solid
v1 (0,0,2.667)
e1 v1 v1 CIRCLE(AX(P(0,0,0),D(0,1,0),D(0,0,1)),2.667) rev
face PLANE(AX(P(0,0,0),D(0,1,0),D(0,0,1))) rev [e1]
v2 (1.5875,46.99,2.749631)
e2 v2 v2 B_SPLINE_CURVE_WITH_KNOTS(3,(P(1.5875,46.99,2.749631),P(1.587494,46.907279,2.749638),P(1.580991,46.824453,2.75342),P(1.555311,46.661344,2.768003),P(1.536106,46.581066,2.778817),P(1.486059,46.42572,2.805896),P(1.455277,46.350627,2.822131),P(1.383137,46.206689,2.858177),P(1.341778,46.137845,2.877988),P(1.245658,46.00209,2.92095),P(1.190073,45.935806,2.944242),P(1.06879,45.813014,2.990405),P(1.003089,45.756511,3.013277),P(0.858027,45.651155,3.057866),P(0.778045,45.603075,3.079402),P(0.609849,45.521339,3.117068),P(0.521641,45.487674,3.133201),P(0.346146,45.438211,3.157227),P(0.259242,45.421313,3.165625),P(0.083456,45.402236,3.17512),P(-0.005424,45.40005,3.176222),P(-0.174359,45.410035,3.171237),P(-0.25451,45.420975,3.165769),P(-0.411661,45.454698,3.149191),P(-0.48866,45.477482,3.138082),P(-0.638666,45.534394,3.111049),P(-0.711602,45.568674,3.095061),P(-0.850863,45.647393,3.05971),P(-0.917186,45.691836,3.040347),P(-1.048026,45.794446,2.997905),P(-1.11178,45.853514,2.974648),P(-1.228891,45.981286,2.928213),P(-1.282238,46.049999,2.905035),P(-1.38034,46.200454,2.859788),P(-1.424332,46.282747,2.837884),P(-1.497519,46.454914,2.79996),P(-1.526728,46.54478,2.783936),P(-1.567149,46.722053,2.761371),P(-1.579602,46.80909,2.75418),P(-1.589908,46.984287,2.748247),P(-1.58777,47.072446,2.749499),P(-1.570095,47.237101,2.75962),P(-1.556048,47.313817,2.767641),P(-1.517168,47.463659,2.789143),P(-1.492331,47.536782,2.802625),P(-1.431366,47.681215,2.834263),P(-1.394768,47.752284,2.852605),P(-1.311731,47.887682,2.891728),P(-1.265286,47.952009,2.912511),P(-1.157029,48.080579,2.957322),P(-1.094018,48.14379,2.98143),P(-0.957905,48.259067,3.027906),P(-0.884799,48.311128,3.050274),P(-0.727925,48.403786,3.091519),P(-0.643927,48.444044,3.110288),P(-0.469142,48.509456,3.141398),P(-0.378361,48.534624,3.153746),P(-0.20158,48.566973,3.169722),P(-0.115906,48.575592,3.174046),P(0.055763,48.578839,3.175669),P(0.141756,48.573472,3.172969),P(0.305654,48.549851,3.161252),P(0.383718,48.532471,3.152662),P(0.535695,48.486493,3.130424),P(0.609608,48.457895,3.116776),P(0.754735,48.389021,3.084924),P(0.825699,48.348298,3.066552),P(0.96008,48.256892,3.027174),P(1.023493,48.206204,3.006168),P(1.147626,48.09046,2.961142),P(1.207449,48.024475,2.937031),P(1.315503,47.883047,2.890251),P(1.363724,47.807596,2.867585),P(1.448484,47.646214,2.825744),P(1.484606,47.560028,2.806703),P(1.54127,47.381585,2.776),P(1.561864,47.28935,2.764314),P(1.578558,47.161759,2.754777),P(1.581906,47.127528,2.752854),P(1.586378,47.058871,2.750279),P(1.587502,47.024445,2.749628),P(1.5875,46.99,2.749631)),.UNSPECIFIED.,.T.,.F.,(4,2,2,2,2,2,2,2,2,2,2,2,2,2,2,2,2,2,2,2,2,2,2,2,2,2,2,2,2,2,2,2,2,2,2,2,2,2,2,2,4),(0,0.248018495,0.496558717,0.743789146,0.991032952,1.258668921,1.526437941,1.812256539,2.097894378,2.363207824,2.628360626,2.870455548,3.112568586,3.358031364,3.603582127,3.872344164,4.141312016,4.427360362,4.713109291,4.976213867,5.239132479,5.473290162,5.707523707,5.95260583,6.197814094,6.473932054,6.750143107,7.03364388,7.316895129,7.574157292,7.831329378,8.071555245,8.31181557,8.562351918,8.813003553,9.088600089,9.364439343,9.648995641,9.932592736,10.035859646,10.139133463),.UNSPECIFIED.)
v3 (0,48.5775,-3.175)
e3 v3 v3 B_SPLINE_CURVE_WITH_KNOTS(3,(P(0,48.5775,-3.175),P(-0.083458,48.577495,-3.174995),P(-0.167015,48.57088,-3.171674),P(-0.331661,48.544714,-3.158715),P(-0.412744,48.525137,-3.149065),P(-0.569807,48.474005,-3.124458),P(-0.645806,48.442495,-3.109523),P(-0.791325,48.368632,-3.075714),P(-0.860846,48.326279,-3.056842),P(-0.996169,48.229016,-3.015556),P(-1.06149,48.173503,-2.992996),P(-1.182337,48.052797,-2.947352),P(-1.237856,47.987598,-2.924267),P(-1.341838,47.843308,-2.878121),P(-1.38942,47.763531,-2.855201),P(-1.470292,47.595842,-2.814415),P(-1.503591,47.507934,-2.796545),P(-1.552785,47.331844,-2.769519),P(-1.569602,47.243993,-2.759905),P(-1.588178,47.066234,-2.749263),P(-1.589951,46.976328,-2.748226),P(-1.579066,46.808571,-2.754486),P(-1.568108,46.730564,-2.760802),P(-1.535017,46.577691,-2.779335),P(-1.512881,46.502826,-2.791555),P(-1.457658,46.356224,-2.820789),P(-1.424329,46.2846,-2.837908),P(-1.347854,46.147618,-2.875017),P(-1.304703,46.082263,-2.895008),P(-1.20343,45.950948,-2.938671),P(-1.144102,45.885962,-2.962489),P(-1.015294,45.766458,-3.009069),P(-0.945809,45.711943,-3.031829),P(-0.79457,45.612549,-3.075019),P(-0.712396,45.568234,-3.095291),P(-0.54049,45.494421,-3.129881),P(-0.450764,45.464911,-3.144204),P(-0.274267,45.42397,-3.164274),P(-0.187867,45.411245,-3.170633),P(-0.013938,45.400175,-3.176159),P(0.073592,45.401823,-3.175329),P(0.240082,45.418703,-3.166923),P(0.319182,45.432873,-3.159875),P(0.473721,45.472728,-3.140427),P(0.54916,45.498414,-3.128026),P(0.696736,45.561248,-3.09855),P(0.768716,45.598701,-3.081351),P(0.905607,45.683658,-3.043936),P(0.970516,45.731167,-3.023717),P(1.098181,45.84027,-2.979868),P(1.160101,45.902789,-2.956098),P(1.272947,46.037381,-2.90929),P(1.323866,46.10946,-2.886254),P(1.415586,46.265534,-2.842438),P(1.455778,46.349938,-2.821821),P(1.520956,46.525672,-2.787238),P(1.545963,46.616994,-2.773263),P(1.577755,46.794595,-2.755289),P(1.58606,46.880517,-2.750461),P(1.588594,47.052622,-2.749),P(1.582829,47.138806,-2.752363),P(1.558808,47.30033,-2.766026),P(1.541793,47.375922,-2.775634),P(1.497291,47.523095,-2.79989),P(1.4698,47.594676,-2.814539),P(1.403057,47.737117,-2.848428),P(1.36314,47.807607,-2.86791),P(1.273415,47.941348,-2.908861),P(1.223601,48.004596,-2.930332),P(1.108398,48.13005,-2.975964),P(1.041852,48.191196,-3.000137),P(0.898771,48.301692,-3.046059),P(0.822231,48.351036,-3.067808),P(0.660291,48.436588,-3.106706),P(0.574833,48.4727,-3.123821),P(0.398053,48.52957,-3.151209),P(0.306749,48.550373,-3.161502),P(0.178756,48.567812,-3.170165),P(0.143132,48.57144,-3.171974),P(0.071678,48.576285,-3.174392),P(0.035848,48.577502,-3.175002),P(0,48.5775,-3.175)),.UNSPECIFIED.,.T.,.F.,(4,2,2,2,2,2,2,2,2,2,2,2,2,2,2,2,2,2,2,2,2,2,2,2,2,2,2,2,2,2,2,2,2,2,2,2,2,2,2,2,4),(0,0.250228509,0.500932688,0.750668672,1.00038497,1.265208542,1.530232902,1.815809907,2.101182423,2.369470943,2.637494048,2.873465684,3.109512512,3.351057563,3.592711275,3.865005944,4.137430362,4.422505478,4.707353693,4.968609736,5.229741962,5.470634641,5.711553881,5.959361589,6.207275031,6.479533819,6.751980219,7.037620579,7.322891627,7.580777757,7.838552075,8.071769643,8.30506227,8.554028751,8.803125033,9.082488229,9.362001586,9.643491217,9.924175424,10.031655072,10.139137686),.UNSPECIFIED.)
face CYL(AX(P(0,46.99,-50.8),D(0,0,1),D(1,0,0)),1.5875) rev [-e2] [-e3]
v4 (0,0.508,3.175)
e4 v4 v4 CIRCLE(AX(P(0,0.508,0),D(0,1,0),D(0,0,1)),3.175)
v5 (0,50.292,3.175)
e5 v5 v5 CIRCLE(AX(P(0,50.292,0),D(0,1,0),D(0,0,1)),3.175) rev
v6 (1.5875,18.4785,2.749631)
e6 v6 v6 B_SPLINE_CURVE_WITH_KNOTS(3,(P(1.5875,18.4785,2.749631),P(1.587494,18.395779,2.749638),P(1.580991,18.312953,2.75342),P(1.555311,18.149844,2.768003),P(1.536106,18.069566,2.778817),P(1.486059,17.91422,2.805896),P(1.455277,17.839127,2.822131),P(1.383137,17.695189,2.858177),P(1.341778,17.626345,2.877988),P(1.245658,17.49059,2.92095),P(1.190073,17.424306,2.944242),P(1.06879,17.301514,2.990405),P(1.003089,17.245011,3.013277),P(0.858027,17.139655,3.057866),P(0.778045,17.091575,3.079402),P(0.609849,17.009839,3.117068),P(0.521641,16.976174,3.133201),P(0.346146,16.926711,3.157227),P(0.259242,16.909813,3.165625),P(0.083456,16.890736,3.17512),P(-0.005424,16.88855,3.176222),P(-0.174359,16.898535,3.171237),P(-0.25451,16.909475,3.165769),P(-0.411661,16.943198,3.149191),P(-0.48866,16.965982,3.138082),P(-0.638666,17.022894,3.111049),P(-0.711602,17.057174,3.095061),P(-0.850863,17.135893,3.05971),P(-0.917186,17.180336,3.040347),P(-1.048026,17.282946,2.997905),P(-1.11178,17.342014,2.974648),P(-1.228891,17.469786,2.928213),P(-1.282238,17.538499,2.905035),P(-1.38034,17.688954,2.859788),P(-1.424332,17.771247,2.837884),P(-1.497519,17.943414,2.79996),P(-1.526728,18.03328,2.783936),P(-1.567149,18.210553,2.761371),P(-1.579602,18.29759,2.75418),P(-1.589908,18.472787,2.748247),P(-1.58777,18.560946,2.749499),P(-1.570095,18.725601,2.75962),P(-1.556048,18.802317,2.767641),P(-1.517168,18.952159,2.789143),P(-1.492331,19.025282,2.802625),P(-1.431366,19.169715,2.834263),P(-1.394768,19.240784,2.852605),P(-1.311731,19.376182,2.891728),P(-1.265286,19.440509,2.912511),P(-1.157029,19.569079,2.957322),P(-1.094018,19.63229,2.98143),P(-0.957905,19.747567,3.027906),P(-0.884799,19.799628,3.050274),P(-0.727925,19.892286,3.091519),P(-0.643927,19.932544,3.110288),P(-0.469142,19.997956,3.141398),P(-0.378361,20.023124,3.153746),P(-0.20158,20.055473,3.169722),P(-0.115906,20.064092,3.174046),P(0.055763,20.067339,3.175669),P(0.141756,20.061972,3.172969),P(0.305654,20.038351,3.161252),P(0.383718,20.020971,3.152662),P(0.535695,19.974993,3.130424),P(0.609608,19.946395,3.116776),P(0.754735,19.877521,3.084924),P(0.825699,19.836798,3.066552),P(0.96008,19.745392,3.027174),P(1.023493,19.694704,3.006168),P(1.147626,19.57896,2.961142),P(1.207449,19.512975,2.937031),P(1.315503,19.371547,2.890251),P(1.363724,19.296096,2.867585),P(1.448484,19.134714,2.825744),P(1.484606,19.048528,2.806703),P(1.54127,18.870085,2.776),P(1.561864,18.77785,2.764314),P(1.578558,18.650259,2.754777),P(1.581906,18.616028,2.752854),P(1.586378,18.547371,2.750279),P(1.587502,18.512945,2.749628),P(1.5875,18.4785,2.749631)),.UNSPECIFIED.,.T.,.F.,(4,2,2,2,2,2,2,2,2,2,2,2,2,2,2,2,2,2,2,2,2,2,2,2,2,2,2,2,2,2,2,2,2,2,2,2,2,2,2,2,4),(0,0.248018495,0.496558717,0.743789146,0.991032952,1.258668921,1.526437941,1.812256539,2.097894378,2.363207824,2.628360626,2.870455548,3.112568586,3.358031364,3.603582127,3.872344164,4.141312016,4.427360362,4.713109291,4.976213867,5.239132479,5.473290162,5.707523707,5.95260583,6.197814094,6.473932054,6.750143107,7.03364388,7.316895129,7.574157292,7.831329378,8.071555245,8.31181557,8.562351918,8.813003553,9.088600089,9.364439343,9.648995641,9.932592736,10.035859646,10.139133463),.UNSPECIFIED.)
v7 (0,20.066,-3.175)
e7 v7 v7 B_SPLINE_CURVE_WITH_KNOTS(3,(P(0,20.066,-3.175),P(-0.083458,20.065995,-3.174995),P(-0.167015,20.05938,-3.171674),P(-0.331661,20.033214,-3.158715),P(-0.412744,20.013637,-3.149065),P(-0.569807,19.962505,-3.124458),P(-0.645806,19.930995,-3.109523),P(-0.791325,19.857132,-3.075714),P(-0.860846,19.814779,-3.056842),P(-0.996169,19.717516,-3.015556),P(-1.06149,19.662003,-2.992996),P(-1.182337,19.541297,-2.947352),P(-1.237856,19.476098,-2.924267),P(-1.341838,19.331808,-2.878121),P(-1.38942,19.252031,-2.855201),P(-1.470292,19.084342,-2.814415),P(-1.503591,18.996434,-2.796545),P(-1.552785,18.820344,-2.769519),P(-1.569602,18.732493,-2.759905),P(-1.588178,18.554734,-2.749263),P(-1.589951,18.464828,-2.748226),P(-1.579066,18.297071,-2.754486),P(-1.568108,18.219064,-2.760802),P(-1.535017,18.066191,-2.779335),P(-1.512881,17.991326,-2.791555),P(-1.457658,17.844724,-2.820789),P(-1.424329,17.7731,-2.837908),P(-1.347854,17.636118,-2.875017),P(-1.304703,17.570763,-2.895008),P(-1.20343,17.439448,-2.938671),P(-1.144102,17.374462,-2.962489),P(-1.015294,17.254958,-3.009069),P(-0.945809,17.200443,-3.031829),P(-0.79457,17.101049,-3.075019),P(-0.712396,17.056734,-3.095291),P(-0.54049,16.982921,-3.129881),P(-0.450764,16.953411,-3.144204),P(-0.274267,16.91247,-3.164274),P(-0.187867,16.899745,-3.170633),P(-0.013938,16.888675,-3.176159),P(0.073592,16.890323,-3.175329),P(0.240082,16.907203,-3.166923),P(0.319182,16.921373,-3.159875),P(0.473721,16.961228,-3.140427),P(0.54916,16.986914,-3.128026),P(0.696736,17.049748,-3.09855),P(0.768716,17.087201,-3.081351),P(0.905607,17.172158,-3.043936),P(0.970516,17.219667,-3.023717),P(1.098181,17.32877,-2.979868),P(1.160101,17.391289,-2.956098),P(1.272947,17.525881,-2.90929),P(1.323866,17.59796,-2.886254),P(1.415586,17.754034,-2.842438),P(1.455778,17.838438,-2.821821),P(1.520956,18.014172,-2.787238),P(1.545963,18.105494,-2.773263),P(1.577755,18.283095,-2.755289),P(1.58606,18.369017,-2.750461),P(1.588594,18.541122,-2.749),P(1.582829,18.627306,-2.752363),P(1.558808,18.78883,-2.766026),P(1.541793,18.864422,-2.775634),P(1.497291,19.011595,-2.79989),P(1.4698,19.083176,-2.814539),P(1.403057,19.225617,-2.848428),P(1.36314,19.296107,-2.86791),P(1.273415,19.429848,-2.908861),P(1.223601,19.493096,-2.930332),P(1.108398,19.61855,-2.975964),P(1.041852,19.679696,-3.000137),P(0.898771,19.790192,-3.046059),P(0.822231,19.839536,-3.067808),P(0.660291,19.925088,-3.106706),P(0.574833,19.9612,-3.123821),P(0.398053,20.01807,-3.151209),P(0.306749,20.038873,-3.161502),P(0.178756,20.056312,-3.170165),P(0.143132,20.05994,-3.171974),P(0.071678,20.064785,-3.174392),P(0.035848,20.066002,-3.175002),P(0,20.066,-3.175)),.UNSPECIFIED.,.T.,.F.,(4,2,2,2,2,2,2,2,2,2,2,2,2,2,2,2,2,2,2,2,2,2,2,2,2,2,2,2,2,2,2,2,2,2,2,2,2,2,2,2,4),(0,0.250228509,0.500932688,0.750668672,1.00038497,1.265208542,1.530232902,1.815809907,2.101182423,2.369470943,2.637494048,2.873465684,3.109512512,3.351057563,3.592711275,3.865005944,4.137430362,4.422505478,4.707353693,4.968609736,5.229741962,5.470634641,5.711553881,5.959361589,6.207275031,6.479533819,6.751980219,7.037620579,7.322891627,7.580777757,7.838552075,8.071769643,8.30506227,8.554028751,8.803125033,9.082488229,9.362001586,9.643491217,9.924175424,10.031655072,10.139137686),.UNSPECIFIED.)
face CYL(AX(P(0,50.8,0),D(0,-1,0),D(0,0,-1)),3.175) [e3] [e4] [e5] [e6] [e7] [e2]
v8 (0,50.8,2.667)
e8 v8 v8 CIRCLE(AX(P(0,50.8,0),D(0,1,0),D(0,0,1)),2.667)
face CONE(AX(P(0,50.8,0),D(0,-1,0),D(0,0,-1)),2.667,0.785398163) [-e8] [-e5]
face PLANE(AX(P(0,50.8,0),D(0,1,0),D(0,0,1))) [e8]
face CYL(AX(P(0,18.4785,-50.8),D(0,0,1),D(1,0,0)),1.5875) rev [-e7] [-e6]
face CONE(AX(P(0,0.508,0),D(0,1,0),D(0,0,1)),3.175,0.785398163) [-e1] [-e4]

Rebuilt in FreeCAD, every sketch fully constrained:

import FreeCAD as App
import Part
import Sketcher
from FreeCAD import Vector
Q = App.Units.Quantity


def edges_at(feature, points):
    """Names of the edges that pass closest to the given points."""
    edges = feature.Shape.Edges
    near = lambda p: min(range(len(edges)), key=lambda i: edges[i].distToShape(Part.Vertex(*p))[0])
    return sorted({f"Edge{near(p) + 1}" for p in points})

doc = App.newDocument("Part")
body = doc.addObject("PartDesign::Body", "Body")

sketch1 = body.newObject("Sketcher::SketchObject", "Sketch")
sketch1.AttachmentSupport = (doc.getObject("XZ_Plane"), [""])
sketch1.MapMode = "FlatFace"
sketch1.addGeometry(Part.Circle(Vector(0, 0, 0), Vector(0, 0, 1), 3.2), False)
sketch1.addConstraint(Sketcher.Constraint("Coincident", 0, 3, -1, 1))
sketch1.addConstraint(Sketcher.Constraint("Diameter", 0, Q("0.25 in")))
pad1 = body.newObject("PartDesign::Pad", "Pad")
pad1.Profile = sketch1
pad1.Length = Q("2 in")
pad1.Reversed = True
doc.recompute()

chamfer = body.newObject("PartDesign::Chamfer", "Chamfer")
chamfer.Base = (pad1, edges_at(pad1, [(-3.175, 0, 0), (-3.175, 50.8, 0)]))
chamfer.Size = Q("0.02 in")

sketch2 = body.newObject("Sketcher::SketchObject", "Sketch001")
sketch2.AttachmentSupport = (doc.getObject("XY_Plane"), [""])
sketch2.MapMode = "FlatFace"
sketch2.addGeometry(Part.Circle(Vector(0, 47, 0), Vector(0, 0, 1), 1.6), False)
sketch2.addGeometry(Part.Circle(Vector(0, 18.5, 0), Vector(0, 0, 1), 1.6), False)
sketch2.addConstraint(Sketcher.Constraint("Equal", 0, 1))
sketch2.addConstraint(Sketcher.Constraint("PointOnObject", 0, 3, -2))
sketch2.addConstraint(Sketcher.Constraint("PointOnObject", 1, 3, -2))
sketch2.addConstraint(Sketcher.Constraint("Diameter", 0, Q("0.125 in")))
sketch2.addConstraint(Sketcher.Constraint("DistanceY", -1, 1, 0, 3, Q("1.85 in")))
sketch2.addConstraint(Sketcher.Constraint("DistanceY", -1, 1, 1, 3, Q("0.7275 in")))
pocket1 = body.newObject("PartDesign::Pocket", "Pocket")
pocket1.Profile = sketch2
pocket1.Type = "ThroughAll"
pocket1.Midplane = True

doc.recompute()
